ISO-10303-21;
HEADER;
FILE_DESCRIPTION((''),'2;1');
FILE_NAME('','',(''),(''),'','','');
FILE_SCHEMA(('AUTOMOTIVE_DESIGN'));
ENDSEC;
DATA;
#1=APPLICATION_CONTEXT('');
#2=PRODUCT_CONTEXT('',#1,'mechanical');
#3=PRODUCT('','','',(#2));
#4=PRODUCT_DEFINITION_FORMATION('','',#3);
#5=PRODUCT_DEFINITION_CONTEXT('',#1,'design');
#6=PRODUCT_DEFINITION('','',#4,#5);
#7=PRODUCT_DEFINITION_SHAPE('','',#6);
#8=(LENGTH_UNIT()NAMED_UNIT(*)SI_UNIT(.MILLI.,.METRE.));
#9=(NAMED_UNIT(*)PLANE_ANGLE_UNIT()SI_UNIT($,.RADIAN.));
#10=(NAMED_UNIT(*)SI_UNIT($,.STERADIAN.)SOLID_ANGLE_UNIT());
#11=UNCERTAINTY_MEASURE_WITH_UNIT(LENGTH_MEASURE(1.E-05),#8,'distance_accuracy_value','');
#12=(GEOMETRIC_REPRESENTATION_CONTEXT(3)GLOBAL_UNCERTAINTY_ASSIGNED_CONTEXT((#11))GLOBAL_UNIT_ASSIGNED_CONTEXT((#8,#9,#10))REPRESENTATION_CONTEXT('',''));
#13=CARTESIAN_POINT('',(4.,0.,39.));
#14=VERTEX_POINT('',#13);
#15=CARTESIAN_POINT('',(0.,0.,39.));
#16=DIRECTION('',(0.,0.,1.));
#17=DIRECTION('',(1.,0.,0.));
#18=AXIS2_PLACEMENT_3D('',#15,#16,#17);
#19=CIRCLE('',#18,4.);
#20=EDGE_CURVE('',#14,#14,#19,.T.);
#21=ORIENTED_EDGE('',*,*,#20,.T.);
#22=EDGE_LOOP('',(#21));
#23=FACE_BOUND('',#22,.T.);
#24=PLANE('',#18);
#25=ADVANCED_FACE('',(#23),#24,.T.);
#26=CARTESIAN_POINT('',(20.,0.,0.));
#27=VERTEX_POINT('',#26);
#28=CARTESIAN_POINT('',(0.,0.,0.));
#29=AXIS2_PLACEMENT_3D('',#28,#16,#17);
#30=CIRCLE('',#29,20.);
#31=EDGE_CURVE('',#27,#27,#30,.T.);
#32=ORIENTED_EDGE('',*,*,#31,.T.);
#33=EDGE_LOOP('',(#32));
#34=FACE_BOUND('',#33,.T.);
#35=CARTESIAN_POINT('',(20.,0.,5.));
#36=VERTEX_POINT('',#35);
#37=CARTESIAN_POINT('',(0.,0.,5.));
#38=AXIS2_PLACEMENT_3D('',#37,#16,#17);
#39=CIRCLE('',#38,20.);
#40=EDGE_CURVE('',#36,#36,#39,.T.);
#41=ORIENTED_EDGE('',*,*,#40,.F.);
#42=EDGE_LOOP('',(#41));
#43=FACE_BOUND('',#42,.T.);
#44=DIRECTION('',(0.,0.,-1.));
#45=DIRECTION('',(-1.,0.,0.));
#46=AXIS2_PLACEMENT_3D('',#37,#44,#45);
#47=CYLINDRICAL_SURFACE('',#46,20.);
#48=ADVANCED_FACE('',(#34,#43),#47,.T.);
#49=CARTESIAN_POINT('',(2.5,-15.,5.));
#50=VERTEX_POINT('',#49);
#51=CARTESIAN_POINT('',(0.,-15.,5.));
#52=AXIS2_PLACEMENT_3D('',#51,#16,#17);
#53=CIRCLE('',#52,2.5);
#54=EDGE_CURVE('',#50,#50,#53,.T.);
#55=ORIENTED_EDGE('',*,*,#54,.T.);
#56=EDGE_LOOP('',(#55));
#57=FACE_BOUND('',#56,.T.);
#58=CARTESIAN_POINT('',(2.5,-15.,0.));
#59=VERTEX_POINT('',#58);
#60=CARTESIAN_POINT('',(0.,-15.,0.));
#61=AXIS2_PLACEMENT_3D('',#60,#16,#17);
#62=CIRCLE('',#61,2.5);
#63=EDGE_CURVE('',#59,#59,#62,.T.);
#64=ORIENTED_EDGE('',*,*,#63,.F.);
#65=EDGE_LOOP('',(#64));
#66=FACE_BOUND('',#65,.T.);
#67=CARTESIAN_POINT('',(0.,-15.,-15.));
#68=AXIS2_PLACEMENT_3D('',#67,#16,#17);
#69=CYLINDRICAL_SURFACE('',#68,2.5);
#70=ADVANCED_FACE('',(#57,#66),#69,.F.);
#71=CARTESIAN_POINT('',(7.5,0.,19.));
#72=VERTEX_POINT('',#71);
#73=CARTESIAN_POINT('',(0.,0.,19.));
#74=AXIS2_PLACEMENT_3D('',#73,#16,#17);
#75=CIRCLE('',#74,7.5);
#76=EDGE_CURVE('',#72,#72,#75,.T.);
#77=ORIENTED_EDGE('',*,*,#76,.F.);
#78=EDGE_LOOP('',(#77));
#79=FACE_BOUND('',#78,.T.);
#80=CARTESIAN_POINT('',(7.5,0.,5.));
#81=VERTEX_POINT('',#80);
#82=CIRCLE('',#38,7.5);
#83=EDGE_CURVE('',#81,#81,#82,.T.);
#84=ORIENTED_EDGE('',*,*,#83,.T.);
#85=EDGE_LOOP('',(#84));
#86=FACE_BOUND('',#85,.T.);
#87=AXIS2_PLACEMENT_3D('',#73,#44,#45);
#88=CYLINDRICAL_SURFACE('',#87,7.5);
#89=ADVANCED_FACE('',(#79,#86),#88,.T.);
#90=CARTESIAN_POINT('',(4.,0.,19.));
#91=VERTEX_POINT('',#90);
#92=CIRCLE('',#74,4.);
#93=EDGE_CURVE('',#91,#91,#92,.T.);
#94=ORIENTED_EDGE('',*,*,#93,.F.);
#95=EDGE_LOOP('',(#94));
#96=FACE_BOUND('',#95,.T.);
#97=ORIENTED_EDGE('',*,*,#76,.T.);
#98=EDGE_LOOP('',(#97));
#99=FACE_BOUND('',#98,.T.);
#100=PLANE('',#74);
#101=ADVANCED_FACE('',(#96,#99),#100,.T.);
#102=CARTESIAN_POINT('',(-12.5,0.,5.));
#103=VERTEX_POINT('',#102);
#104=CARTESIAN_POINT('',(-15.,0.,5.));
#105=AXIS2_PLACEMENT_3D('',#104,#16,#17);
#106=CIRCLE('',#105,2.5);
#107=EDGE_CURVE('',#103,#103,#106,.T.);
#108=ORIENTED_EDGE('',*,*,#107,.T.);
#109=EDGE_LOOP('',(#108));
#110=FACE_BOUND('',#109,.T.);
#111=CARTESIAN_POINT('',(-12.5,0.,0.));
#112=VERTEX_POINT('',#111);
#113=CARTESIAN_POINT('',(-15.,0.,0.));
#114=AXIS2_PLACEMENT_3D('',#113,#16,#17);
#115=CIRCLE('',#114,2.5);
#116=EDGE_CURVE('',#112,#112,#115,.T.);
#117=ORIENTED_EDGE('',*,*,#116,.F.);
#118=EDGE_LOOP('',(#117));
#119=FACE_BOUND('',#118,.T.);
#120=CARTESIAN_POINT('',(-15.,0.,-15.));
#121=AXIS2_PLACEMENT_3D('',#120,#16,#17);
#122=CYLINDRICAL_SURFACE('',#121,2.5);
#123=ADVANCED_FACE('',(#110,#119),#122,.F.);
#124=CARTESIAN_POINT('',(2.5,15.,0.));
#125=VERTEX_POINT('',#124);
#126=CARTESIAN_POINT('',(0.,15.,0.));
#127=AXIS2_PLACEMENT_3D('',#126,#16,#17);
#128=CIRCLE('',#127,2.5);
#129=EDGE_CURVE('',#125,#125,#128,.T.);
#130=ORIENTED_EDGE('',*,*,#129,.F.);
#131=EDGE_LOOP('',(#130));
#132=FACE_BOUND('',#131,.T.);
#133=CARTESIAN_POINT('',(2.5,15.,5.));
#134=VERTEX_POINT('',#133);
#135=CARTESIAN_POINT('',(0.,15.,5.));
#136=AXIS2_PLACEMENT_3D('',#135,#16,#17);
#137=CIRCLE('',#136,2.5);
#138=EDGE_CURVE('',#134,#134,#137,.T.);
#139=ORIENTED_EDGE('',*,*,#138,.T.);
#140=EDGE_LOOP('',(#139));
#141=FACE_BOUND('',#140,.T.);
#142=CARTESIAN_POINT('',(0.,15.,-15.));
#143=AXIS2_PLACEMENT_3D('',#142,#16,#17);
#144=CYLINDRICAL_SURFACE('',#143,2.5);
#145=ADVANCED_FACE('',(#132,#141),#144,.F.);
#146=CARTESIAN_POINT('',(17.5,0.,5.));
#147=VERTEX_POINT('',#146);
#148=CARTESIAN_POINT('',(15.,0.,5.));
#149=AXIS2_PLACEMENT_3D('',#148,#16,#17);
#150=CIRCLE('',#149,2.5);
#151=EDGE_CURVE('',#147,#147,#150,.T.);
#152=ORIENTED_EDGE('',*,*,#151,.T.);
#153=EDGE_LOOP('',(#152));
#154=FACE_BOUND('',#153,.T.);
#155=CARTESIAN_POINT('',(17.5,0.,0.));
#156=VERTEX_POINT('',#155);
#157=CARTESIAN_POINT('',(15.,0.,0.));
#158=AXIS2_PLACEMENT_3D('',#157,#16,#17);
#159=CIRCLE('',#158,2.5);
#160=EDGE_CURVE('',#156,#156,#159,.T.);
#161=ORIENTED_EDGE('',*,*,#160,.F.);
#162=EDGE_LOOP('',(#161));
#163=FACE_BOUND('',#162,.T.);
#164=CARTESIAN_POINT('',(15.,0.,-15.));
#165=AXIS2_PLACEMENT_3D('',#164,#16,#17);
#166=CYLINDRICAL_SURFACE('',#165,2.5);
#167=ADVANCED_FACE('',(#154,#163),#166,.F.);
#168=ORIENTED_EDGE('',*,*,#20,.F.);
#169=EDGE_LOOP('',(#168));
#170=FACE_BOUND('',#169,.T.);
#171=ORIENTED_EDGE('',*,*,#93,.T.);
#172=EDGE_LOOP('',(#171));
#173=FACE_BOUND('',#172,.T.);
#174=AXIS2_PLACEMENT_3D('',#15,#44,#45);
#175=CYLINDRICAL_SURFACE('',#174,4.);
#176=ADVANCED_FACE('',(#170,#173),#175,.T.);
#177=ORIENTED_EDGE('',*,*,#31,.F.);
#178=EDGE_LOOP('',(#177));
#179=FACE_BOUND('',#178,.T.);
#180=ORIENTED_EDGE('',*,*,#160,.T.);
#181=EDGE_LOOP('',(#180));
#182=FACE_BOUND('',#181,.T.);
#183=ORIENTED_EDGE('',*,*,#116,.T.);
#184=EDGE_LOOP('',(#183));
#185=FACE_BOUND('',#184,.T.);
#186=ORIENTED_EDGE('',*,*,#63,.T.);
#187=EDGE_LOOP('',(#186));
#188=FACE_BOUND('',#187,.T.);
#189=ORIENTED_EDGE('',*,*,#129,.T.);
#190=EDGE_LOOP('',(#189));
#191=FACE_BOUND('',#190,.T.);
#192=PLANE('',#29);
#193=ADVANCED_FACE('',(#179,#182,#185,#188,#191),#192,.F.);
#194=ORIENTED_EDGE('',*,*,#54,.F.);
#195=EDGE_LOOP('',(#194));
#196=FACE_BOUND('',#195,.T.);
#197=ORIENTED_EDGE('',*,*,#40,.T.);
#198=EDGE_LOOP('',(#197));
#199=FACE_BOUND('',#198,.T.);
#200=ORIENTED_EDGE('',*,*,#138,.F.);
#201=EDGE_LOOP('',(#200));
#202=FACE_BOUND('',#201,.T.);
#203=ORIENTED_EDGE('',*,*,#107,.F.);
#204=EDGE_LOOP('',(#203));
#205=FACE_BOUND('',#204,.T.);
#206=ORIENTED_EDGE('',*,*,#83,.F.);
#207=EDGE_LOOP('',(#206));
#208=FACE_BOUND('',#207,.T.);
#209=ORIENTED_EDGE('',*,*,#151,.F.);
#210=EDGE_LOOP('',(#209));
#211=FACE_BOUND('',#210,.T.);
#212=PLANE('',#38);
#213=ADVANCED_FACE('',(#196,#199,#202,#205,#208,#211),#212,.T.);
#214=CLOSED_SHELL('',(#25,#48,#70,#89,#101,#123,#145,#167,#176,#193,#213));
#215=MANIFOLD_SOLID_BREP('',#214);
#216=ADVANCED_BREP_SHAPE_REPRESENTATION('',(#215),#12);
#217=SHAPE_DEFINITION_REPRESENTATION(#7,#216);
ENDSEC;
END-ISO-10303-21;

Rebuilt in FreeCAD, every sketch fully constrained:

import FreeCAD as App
import Part
import Sketcher

doc = App.newDocument("Part")
body = doc.addObject("PartDesign::Body", "Body")

sketch1 = body.newObject("Sketcher::SketchObject", "Sketch")
sketch1.AttachmentSupport = (doc.getObject("XY_Plane"), [""])
sketch1.MapMode = "FlatFace"
sketch1.addGeometry(Part.Circle(App.Vector(0, 0, 0), App.Vector(0, 0, 1), 20), False)
sketch1.addConstraint([
    Sketcher.Constraint("Coincident", 0, 3, -1, 1),
    Sketcher.Constraint("Diameter", 0, 40.0),
])
pad1 = body.newObject("PartDesign::Pad", "Pad")
pad1.Profile = sketch1
pad1.Length = 5

sketch2 = body.newObject("Sketcher::SketchObject", "Sketch001")
sketch2.AttachmentSupport = (doc.getObject("XY_Plane"), [""])
sketch2.MapMode = "FlatFace"
sketch2.AttachmentOffset = App.Placement(App.Vector(0, 0, 5), App.Rotation())
sketch2.addGeometry(Part.Circle(App.Vector(0, 0, 0), App.Vector(0, 0, 1), 8), False)
sketch2.addConstraint([
    Sketcher.Constraint("Coincident", 0, 3, -1, 1),
    Sketcher.Constraint("Diameter", 0, 15.0),
])
pad2 = body.newObject("PartDesign::Pad", "Pad001")
pad2.Profile = sketch2
pad2.Length = 14

sketch3 = body.newObject("Sketcher::SketchObject", "Sketch002")
sketch3.AttachmentSupport = (doc.getObject("XY_Plane"), [""])
sketch3.MapMode = "FlatFace"
sketch3.AttachmentOffset = App.Placement(App.Vector(0, 0, 19), App.Rotation())
sketch3.addGeometry(Part.Circle(App.Vector(0, 0, 0), App.Vector(0, 0, 1), 4), False)
sketch3.addConstraint([
    Sketcher.Constraint("Coincident", 0, 3, -1, 1),
    Sketcher.Constraint("Diameter", 0, 8.0),
])
pad3 = body.newObject("PartDesign::Pad", "Pad002")
pad3.Profile = sketch3
pad3.Length = 20

sketch4 = body.newObject("Sketcher::SketchObject", "Sketch003")
sketch4.AttachmentSupport = (doc.getObject("XY_Plane"), [""])
sketch4.MapMode = "FlatFace"
sketch4.AttachmentOffset = App.Placement(App.Vector(0, 0, 5), App.Rotation())
sketch4.addGeometry([
    Part.Circle(App.Vector(0, 15, 0), App.Vector(0, 0, 1), 2.5),
    Part.Circle(App.Vector(15, 0, 0), App.Vector(0, 0, 1), 2.5),
    Part.Circle(App.Vector(0, -15, 0), App.Vector(0, 0, 1), 2.5),
    Part.Circle(App.Vector(-15, 0, 0), App.Vector(0, 0, 1), 2.5),
], False)
sketch4.addConstraint([
    Sketcher.Constraint("Equal", 0, 1),
    Sketcher.Constraint("Equal", 1, 2),
    Sketcher.Constraint("Equal", 2, 3),
    Sketcher.Constraint("Symmetric", 0, 3, 2, 3, -1, 1),
    Sketcher.Constraint("Symmetric", 1, 3, 3, 3, -1, 1),
    Sketcher.Constraint("PointOnObject", 0, 3, -2),
    Sketcher.Constraint("PointOnObject", 1, 3, -1),
    Sketcher.Constraint("Diameter", 0, 5.0),
    Sketcher.Constraint("DistanceY", -1, 1, 0, 3, 15.0),
    Sketcher.Constraint("DistanceX", -1, 1, 1, 3, 15.0),
])
pocket1 = body.newObject("PartDesign::Pocket", "Pocket")
pocket1.Profile = sketch4
pocket1.Length = 20

doc.recompute()
